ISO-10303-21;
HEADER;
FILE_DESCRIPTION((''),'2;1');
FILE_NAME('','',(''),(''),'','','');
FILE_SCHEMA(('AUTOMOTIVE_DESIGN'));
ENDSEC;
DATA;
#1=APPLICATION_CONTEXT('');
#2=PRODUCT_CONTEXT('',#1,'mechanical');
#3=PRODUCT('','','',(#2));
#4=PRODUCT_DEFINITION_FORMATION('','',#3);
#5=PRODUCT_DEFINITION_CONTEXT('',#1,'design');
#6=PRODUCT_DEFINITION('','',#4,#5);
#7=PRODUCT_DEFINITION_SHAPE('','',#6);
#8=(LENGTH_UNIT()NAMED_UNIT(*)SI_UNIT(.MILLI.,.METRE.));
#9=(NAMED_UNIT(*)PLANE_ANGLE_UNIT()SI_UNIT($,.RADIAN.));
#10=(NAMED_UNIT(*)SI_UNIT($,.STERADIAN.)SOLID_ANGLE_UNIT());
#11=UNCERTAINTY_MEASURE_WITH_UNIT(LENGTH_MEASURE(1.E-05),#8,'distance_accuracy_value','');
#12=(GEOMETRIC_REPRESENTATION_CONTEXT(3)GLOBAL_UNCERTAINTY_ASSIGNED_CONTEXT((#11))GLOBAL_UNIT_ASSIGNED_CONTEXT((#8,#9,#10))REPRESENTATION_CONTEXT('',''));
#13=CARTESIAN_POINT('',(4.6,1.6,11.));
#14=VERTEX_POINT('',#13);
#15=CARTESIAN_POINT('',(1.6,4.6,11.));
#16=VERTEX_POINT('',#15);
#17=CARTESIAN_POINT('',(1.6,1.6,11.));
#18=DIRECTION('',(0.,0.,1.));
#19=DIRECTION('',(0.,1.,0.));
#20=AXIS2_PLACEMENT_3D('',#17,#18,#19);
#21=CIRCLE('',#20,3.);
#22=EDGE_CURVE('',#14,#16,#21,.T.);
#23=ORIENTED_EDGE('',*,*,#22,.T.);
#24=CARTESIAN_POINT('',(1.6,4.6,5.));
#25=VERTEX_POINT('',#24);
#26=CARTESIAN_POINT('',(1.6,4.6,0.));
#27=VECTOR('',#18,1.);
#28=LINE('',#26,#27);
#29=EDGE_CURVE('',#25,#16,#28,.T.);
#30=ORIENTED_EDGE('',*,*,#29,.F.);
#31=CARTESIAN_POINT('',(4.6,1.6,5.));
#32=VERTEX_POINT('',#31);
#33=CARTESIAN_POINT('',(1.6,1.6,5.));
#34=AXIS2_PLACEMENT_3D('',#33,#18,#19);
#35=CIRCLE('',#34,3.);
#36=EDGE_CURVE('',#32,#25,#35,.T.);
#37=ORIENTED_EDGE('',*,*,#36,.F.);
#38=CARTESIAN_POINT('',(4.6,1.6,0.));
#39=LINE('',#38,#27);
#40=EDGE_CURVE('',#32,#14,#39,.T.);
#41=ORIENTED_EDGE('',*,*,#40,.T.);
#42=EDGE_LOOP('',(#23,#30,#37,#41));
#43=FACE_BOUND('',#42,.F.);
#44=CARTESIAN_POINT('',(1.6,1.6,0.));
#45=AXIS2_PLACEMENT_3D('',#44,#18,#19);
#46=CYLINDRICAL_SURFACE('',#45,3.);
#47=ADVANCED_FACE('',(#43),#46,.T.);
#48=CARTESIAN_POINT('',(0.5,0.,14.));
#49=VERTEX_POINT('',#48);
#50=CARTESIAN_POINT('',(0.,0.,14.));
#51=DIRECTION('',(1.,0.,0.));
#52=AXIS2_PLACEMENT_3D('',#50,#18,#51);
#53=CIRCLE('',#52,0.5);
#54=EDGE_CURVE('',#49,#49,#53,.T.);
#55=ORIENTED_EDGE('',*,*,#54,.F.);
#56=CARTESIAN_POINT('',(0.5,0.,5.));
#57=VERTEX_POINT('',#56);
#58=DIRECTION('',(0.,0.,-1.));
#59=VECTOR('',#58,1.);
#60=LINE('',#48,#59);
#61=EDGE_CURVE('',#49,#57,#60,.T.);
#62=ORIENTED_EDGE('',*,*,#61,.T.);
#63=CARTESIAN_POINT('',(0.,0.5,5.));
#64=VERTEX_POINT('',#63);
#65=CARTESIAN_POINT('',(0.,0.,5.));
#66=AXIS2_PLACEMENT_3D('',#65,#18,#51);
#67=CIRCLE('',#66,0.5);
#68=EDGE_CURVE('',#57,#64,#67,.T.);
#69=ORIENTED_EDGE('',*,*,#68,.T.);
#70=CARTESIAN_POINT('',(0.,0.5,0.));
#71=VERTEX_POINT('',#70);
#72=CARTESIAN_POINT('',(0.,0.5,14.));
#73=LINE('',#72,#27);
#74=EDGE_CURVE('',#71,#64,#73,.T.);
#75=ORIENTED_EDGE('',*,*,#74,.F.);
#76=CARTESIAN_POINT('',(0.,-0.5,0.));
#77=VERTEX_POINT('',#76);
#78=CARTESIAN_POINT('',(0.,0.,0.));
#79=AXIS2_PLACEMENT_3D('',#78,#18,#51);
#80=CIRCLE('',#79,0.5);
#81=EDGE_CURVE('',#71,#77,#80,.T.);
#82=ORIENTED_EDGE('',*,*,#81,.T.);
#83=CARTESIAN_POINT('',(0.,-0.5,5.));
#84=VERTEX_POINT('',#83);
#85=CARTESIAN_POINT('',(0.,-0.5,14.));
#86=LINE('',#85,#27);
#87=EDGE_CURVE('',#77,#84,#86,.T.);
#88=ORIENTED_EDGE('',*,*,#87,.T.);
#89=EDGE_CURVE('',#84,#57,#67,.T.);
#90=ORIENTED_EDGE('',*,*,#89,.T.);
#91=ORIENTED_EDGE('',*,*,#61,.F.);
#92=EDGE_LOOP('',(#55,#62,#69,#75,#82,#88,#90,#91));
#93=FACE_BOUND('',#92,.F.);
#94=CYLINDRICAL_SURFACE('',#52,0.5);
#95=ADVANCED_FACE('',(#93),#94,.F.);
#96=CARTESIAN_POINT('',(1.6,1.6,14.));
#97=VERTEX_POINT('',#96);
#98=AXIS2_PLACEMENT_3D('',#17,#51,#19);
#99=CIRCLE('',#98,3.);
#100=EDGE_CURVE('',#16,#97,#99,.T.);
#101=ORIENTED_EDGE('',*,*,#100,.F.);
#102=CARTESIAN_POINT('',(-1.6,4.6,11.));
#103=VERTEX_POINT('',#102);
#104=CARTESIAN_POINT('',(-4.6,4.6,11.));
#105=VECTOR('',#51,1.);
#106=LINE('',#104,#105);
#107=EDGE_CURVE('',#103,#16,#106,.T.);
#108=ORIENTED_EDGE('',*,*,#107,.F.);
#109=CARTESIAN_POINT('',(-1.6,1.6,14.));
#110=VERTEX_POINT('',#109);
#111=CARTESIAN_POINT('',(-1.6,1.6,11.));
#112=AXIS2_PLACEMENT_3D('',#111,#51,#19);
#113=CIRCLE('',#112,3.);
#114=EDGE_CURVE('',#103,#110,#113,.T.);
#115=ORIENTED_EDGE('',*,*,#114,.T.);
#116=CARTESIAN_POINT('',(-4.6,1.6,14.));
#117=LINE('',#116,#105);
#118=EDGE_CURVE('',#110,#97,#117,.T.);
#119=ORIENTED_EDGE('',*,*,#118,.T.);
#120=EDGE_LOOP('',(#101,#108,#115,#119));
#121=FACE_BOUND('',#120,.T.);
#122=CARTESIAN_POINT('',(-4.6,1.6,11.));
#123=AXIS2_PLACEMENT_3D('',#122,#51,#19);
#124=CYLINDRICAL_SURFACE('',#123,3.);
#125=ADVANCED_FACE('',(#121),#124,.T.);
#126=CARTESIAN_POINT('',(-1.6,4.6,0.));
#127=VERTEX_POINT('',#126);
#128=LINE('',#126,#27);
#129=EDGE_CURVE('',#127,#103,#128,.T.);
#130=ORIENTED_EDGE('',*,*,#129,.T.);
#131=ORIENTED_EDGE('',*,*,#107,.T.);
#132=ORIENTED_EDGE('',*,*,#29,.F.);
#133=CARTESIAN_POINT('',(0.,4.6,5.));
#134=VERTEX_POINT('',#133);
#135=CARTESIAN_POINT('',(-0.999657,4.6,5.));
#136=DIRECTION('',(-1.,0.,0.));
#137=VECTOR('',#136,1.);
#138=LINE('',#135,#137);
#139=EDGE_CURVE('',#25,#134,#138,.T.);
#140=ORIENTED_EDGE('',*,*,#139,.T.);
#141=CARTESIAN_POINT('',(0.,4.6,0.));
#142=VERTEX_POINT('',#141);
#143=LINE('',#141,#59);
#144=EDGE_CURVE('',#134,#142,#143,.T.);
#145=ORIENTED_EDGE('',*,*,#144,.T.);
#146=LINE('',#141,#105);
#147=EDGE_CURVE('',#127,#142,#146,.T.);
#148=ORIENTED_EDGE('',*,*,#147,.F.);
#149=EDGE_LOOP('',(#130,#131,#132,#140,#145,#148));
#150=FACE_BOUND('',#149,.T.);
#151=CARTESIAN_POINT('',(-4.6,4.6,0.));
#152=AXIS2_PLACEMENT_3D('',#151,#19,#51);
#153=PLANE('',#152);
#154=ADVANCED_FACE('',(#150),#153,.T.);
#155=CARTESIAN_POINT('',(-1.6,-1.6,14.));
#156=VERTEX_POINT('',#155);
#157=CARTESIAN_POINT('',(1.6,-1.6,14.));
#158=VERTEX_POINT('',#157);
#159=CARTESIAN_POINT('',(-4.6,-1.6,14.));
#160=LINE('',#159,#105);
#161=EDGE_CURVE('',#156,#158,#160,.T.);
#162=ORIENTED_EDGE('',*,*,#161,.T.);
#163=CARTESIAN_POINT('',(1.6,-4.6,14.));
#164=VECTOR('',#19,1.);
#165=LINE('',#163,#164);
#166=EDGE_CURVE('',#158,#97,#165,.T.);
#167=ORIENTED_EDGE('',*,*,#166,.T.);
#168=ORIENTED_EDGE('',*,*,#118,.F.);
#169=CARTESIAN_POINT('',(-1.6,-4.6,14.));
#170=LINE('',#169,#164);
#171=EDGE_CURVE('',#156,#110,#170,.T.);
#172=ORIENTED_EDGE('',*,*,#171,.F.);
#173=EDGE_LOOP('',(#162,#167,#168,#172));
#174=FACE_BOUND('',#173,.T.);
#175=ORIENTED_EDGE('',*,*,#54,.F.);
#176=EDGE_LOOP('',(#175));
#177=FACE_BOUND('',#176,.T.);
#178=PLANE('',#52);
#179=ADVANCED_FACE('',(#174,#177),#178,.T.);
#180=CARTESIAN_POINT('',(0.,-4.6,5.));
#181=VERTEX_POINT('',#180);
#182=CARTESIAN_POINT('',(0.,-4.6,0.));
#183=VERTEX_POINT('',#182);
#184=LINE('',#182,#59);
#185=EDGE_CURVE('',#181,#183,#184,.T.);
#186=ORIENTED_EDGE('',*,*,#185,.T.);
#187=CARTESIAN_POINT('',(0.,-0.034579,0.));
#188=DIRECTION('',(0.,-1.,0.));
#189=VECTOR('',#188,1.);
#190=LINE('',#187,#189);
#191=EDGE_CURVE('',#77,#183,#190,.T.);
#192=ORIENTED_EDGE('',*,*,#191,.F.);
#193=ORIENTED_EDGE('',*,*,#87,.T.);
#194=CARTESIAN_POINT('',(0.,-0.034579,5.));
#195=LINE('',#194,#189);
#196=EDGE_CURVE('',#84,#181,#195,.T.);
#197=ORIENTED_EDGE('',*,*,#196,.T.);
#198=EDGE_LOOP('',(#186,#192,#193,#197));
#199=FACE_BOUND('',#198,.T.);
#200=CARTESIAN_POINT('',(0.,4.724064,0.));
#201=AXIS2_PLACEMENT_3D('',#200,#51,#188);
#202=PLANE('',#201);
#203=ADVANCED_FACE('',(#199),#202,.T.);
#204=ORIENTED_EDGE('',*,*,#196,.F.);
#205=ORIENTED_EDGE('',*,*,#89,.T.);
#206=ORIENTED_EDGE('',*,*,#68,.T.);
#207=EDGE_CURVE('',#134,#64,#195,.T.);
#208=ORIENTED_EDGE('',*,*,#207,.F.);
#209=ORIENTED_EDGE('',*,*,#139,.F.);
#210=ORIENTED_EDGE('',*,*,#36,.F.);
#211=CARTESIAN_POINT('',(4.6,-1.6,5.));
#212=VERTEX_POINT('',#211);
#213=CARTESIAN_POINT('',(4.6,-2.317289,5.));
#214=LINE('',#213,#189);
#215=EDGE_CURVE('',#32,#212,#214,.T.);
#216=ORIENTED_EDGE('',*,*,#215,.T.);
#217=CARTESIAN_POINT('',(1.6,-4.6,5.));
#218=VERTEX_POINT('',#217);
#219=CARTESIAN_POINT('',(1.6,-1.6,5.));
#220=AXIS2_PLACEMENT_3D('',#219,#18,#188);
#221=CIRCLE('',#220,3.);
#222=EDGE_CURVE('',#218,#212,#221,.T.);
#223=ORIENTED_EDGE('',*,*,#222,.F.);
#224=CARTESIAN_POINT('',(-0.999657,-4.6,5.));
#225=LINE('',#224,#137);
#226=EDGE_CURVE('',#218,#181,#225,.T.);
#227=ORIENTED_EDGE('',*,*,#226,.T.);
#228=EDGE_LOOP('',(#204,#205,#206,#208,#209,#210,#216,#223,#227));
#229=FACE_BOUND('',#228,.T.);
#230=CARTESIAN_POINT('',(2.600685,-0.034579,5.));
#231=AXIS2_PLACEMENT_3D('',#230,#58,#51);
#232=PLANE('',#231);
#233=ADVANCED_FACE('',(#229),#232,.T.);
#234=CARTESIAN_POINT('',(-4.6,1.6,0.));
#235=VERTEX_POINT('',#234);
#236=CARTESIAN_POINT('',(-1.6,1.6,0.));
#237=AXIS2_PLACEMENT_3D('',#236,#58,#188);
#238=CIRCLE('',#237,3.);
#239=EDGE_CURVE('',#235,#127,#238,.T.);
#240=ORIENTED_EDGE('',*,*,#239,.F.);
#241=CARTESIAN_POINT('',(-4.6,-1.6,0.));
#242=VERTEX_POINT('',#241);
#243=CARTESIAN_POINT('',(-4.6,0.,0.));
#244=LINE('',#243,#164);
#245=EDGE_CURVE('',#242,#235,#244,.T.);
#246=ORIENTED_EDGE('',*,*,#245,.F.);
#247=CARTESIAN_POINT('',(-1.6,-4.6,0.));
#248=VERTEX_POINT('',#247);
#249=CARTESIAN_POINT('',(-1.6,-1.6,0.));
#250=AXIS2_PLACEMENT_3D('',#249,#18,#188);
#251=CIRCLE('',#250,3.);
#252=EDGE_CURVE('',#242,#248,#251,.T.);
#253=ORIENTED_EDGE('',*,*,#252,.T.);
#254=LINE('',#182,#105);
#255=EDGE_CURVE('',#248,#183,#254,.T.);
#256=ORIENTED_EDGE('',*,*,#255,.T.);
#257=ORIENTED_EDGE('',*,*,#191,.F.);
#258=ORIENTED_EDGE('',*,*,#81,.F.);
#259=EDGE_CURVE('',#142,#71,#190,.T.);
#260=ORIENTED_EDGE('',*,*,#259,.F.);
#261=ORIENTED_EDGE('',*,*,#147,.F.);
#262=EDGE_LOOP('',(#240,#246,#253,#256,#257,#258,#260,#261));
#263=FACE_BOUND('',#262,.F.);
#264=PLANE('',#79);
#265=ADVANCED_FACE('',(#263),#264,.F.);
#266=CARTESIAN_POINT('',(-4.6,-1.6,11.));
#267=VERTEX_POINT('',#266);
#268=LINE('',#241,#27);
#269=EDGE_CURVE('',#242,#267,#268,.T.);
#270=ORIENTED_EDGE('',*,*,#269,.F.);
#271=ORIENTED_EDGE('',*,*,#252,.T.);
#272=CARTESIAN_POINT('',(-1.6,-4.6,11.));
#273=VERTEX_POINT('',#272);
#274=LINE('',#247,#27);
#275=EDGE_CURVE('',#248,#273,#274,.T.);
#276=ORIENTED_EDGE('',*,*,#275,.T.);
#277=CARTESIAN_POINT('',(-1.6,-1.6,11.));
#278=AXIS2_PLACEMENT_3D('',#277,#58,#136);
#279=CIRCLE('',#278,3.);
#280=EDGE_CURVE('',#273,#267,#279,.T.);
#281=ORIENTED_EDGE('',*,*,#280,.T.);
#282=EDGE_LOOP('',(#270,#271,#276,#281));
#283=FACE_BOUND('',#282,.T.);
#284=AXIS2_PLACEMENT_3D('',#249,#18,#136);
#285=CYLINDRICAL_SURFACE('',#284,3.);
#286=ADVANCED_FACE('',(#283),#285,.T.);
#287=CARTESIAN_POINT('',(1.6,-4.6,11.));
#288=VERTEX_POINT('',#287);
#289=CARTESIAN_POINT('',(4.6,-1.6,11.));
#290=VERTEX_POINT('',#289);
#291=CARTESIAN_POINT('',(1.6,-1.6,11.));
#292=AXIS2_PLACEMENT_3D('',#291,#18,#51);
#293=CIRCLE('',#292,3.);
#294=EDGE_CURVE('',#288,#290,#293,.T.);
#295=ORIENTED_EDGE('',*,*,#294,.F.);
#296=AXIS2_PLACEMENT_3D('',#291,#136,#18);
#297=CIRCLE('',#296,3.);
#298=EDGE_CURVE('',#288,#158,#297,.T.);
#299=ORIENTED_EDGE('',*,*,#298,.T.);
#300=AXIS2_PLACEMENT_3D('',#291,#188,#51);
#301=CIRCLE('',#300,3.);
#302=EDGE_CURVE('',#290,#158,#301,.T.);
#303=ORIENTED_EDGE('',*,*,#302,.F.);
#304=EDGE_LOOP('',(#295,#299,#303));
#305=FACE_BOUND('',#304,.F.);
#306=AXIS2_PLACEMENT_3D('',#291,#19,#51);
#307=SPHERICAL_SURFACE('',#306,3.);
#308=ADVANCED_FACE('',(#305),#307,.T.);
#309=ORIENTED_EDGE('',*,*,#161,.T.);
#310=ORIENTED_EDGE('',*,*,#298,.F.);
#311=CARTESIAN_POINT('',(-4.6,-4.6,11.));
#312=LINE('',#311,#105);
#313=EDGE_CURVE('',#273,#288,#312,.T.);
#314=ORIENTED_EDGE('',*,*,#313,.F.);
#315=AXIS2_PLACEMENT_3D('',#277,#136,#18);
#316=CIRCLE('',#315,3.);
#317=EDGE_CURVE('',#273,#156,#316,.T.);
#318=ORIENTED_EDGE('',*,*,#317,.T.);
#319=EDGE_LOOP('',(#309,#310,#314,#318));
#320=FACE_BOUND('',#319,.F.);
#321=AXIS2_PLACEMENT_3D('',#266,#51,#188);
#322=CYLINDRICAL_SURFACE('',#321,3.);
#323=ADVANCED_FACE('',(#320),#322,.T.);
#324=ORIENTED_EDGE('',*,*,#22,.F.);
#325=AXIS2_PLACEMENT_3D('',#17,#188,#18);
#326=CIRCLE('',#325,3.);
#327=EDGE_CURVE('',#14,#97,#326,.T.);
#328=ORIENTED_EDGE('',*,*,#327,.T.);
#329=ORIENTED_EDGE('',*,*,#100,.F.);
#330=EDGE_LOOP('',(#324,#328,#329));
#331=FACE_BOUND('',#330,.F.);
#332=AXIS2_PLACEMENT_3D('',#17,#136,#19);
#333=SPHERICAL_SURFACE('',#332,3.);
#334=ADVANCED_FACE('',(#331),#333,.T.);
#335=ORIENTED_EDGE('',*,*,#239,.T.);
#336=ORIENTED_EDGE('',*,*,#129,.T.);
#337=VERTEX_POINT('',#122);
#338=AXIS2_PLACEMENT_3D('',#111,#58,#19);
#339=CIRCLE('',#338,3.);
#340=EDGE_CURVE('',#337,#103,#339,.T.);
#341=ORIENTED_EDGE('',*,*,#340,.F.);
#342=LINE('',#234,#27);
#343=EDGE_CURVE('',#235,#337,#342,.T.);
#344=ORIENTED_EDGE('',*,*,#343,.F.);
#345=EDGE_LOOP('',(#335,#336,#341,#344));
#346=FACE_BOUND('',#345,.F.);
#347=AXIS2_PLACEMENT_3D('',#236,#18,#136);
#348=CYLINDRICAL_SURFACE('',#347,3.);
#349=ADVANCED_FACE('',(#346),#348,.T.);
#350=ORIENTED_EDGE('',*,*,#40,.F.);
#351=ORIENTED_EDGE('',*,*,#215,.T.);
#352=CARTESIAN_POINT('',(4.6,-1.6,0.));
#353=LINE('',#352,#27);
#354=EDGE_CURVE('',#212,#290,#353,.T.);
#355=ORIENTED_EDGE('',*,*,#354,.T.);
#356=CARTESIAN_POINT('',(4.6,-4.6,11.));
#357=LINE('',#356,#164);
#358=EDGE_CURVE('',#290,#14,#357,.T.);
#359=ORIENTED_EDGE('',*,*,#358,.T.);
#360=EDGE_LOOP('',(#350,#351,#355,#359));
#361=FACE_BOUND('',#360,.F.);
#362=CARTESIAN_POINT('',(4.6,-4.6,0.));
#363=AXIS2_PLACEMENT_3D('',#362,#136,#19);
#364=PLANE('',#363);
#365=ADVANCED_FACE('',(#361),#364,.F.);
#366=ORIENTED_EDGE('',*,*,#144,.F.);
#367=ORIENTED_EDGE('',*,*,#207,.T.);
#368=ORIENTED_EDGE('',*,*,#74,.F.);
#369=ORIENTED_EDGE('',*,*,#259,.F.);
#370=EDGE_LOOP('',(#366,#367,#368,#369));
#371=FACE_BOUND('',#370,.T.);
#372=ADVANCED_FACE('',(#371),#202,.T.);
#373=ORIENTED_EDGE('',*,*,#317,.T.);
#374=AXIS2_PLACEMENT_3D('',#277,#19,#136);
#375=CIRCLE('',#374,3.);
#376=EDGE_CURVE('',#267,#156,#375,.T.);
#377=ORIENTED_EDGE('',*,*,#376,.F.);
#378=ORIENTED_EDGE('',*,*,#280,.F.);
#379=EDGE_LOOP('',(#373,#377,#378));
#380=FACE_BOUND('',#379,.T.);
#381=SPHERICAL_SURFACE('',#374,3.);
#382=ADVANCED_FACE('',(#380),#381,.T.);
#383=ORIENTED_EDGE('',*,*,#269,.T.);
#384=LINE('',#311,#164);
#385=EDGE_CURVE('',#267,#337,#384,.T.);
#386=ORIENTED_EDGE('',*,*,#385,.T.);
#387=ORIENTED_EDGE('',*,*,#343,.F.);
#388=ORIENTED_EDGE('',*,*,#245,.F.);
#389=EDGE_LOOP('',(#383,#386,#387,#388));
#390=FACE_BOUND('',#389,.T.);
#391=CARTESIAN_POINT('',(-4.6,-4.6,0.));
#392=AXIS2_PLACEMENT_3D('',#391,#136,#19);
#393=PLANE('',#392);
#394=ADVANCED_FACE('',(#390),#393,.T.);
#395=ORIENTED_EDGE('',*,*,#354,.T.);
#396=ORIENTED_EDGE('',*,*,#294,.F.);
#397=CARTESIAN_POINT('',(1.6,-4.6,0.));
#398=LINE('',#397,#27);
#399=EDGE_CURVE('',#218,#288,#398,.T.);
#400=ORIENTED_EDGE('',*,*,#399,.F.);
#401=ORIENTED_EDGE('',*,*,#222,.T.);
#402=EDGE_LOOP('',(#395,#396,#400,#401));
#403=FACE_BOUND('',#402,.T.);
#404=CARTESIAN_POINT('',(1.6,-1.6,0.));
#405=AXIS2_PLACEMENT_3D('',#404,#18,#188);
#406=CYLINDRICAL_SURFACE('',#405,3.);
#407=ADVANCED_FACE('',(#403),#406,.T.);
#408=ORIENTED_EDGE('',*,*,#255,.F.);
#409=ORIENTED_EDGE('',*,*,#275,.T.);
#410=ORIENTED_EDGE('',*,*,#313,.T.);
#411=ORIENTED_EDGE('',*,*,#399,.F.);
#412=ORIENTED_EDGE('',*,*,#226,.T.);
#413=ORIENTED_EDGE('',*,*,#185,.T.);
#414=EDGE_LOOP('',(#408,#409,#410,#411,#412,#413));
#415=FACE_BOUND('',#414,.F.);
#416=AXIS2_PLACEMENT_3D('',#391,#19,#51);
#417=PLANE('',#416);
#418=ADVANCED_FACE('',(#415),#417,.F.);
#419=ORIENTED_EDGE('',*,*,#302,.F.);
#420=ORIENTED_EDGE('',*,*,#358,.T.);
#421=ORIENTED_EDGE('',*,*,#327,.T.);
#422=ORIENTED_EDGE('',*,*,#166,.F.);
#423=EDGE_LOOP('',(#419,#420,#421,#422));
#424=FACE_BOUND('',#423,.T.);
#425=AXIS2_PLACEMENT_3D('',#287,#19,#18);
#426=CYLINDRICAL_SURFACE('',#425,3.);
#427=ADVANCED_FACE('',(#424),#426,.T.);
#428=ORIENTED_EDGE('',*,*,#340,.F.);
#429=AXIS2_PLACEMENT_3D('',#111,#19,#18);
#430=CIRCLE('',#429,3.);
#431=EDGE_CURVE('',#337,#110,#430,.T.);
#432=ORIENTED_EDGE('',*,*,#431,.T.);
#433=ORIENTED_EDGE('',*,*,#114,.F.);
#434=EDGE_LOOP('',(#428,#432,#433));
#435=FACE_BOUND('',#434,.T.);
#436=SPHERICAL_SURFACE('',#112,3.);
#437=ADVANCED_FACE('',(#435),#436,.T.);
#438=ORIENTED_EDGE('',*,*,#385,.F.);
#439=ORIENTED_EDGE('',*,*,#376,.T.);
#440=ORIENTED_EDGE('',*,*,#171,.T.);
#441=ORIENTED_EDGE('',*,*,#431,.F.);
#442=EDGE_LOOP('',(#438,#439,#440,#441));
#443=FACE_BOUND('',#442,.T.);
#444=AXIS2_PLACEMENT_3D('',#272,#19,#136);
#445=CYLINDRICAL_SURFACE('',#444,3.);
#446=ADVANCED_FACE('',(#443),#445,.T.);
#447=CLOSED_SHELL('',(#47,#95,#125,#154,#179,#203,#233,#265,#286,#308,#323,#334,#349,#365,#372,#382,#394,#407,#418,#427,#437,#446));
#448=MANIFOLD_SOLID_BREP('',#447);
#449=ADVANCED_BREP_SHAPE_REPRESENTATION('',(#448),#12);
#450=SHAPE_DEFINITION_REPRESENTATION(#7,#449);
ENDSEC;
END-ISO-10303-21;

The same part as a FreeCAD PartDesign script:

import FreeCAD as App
import Part
import Sketcher

V = App.Vector
Q = App.Units.Quantity


def edges_at(feature, points):
    """Names of the edges that pass closest to the given points."""
    edges = feature.Shape.Edges
    near = lambda p: min(range(len(edges)), key=lambda i: edges[i].distToShape(Part.Vertex(*p))[0])
    return sorted({f"Edge{near(p) + 1}" for p in points})

doc = App.newDocument("Part")
params = doc.addObject("Spreadsheet::Sheet", "Params")
for row, (alias, value) in enumerate([
    ("sketch1_width", "9.2 mm"),
    ("pad1_length", "14 mm"),
    ("sketch2_diameter", "1 mm"),
    ("fillet_radius", "3 mm"),
    ("pocket2_length", "5 mm"),
], start=1):
    params.set(f"A{row}", alias)
    params.set(f"B{row}", "=" + value)
    params.setAlias(f"B{row}", alias)

body = doc.addObject("PartDesign::Body", "Body")

sketch1 = body.newObject("Sketcher::SketchObject", "Sketch")
sketch1.AttachmentSupport = (doc.getObject("XY_Plane"), [""])
sketch1.MapMode = "FlatFace"
sketch1.addGeometry([
    Part.LineSegment(V(-5, 5, 0), V(-5, -5, 0)),
    Part.LineSegment(V(-5, -5, 0), V(5, -5, 0)),
    Part.LineSegment(V(5, -5, 0), V(5, 5, 0)),
    Part.LineSegment(V(5, 5, 0), V(-5, 5, 0)),
], False)
sketch1.addConstraint([
    Sketcher.Constraint("Coincident", 0, 2, 1, 1),
    Sketcher.Constraint("Coincident", 1, 2, 2, 1),
    Sketcher.Constraint("Coincident", 2, 2, 3, 1),
    Sketcher.Constraint("Coincident", 3, 2, 0, 1),
    Sketcher.Constraint("Vertical", 0),
    Sketcher.Constraint("Horizontal", 1),
    Sketcher.Constraint("Vertical", 2),
    Sketcher.Constraint("Horizontal", 3),
    Sketcher.Constraint("Symmetric", 0, 2, 2, 2, -1, 1),
    Sketcher.Constraint("Equal", 3, 0),
    Sketcher.Constraint("DistanceX", 1, 1, 1, 2, Q("9.2 mm")),
])
sketch1.setExpression("Constraints[10]", "Params.sketch1_width")
pad1 = body.newObject("PartDesign::Pad", "Pad")
pad1.Profile = sketch1
pad1.setExpression("Length", "Params.pad1_length")

sketch2 = body.newObject("Sketcher::SketchObject", "Sketch001")
sketch2.AttachmentSupport = (doc.getObject("XY_Plane"), [""])
sketch2.MapMode = "FlatFace"
sketch2.AttachmentOffset = App.Placement(V(0, 0, 14), App.Rotation())
sketch2.addGeometry(Part.Circle(V(0, 0, 0), V(0, 0, 1), 0.5), False)
sketch2.addConstraint([
    Sketcher.Constraint("Coincident", 0, 3, -1, 1),
    Sketcher.Constraint("Diameter", 0, Q("1 mm")),
])
sketch2.setExpression("Constraints[1]", "Params.sketch2_diameter")
pocket1 = body.newObject("PartDesign::Pocket", "Pocket")
pocket1.Profile = sketch2
pocket1.Type = "ThroughAll"
doc.recompute()

fillet = body.newObject("PartDesign::Fillet", "Fillet")
fillet.Base = (pocket1, edges_at(pocket1, [
    (0, 4.6, 14),
    (4.6, 4.6, 7),
    (4.6, 0, 14),
    (-4.6, 4.6, 7),
    (-4.6, 0, 14),
    (4.6, -4.6, 7),
    (-4.6, -4.6, 7),
    (0, -4.6, 14),
]))
fillet.setExpression("Radius", "Params.fillet_radius")

sketch3 = body.newObject("Sketcher::SketchObject", "Sketch002")
sketch3.AttachmentSupport = (doc.getObject("XY_Plane"), [""])
sketch3.MapMode = "FlatFace"
sketch3.addGeometry([
    Part.LineSegment(V(0, -5, 0), V(0, 5, 0)),
    Part.LineSegment(V(0, 5, 0), V(5, 5, 0)),
    Part.LineSegment(V(5, 5, 0), V(5, -5, 0)),
    Part.LineSegment(V(5, -5, 0), V(0, -5, 0)),
], False)
sketch3.addConstraint([
    Sketcher.Constraint("Coincident", 0, 2, 1, 1),
    Sketcher.Constraint("Coincident", 1, 2, 2, 1),
    Sketcher.Constraint("Coincident", 2, 2, 3, 1),
    Sketcher.Constraint("Coincident", 3, 2, 0, 1),
    Sketcher.Constraint("Vertical", 0),
    Sketcher.Constraint("Horizontal", 1),
    Sketcher.Constraint("Vertical", 2),
    Sketcher.Constraint("Horizontal", 3),
    Sketcher.Constraint("PointOnObject", 0, 2, -2),
    Sketcher.Constraint("DistanceX", 1, 1, 1, 2, Q("5.20137 mm")),
    Sketcher.Constraint("DistanceY", 0, 1, 0, 2, Q("9.517286 mm")),
    Sketcher.Constraint("DistanceY", -1, 1, 0, 2, Q("4.724064 mm")),
])
pocket2 = body.newObject("PartDesign::Pocket", "Pocket001")
pocket2.Profile = sketch3
pocket2.setExpression("Length", "Params.pocket2_length")
pocket2.Reversed = True

doc.recompute()
